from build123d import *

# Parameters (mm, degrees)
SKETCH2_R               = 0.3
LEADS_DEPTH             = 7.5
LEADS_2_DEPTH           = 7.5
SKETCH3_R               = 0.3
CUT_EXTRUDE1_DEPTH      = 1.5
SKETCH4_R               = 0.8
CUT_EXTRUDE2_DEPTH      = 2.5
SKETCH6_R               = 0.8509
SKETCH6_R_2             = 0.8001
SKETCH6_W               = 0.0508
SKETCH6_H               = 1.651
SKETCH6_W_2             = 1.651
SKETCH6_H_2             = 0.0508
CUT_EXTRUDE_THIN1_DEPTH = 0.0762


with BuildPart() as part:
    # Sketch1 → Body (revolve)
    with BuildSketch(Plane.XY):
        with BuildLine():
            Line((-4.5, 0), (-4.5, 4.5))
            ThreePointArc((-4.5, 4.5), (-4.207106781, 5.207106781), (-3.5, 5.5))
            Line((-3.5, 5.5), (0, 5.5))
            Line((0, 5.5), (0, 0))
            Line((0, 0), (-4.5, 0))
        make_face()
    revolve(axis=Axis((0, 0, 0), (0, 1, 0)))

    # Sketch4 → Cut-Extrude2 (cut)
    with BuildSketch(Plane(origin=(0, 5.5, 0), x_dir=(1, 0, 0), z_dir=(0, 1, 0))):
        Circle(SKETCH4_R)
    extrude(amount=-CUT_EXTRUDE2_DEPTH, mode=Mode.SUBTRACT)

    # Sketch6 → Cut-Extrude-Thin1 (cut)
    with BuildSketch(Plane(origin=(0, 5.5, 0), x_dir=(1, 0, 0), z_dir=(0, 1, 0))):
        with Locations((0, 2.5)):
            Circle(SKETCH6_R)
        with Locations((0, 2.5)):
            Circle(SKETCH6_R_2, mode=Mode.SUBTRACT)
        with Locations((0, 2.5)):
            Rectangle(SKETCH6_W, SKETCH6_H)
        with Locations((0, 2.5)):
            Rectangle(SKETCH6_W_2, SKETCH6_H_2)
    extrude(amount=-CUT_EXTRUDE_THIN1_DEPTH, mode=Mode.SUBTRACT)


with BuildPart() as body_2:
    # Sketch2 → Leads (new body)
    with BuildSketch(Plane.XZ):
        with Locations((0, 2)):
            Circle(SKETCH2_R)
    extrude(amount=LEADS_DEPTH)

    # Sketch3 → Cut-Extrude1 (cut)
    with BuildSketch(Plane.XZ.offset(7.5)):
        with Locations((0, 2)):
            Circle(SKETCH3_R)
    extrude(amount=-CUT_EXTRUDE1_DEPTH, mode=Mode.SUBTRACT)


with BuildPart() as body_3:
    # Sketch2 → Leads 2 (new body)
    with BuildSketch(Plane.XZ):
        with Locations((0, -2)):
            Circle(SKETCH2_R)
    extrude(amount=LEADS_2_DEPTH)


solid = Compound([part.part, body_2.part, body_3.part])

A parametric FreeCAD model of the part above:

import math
import FreeCAD as App
import Part
import Sketcher
from FreeCAD import Vector
Q = App.Units.Quantity

doc = App.newDocument("Part")
body = doc.addObject("PartDesign::Body", "Body")

# Sketch on XY plane
sketch1 = body.newObject("Sketcher::SketchObject", "Sketch")
sketch1.AttachmentSupport = (doc.getObject("XY_Plane"), [""])
sketch1.MapMode = "FlatFace"
sketch1.addGeometry([
    Part.LineSegment(Vector(-4.5, 4.5, 0), Vector(-4.5, 0, 0)),  # 0
    Part.LineSegment(Vector(-4.5, 0, 0), Vector(0, 0, 0)),  # 1
    Part.LineSegment(Vector(0, 0, 0), Vector(0, 5.5, 0)),  # 2
    Part.LineSegment(Vector(0, 5.5, 0), Vector(-3.5, 5.5, 0)),  # 3
    Part.ArcOfCircle(Part.Circle(Vector(-3.5, 4.5, 0), Vector(0, 0, 1), 1), math.radians(90), math.radians(180)),  # 4
], False)
sketch1.addConstraint([
    Sketcher.Constraint("Coincident", 0, 2, 1, 1),
    Sketcher.Constraint("Coincident", 1, 2, 2, 1),
    Sketcher.Constraint("Coincident", 2, 2, 3, 1),
    Sketcher.Constraint("Tangent", 3, 2, 4, 1),
    Sketcher.Constraint("Tangent", 4, 2, 0, 1),
    Sketcher.Constraint("Vertical", 0),
    Sketcher.Constraint("Horizontal", 1),
    Sketcher.Constraint("Vertical", 2),
    Sketcher.Constraint("Horizontal", 3),
    Sketcher.Constraint("Coincident", 1, 2, -1, 1),
    Sketcher.Constraint("Equal", 1, 0),
    Sketcher.Constraint("Radius", 4, Q("1 mm")),
    Sketcher.Constraint("DistanceX", 1, 1, 1, 2, Q("4.5 mm")),
])
revolution = body.newObject("PartDesign::Revolution", "Revolution")
revolution.Profile = sketch1
revolution.ReferenceAxis = (sketch1, ["V_Axis"])
revolution.Angle = 360

# Sketch on XZ plane
sketch2 = body.newObject("Sketcher::SketchObject", "Sketch001")
sketch2.AttachmentSupport = (doc.getObject("XZ_Plane"), [""])
sketch2.MapMode = "FlatFace"
sketch2.AttachmentOffset = App.Placement(Vector(0, 0, -5.5), App.Rotation())
sketch2.addGeometry(Part.Circle(Vector(0, 0, 0), Vector(0, 0, 1), 0.8), False)
sketch2.addConstraint([
    Sketcher.Constraint("Coincident", 0, 3, -1, 1),
    Sketcher.Constraint("Diameter", 0, Q("1.6 mm")),
])
pocket1 = body.newObject("PartDesign::Pocket", "Pocket")
pocket1.Profile = sketch2
pocket1.Length = 2.5
pocket1.Reversed = True

# Sketch on XZ plane
sketch3 = body.newObject("Sketcher::SketchObject", "Sketch002")
sketch3.AttachmentSupport = (doc.getObject("XZ_Plane"), [""])
sketch3.MapMode = "FlatFace"
sketch3.AttachmentOffset = App.Placement(Vector(0, 0, -5.5), App.Rotation())
sketch3.addGeometry([
    Part.Circle(Vector(0, -2.5, 0), Vector(0, 0, 1), 0.8509),  # 0
    Part.LineSegment(Vector(0.0254, -2.5254, 0), Vector(0.0254, -3.299697, 0)),  # 1
    Part.ArcOfCircle(Part.Circle(Vector(0, -2.5, 0), Vector(0, 0, 1), 0.8001), math.radians(-88.180781), math.radians(-1.819219)),  # 2
    Part.LineSegment(Vector(0.799697, -2.5254, 0), Vector(0.0254, -2.5254, 0)),  # 3
    Part.LineSegment(Vector(-0.0254, -3.299697, 0), Vector(-0.0254, -2.5254, 0)),  # 4
    Part.LineSegment(Vector(-0.0254, -2.5254, 0), Vector(-0.799697, -2.5254, 0)),  # 5
    Part.ArcOfCircle(Part.Circle(Vector(0, -2.5, 0), Vector(0, 0, 1), 0.8001), math.radians(-178.180781), math.radians(-91.819219)),  # 6
    Part.ArcOfCircle(Part.Circle(Vector(0, -2.5, 0), Vector(0, 0, 1), 0.8001), math.radians(91.819219), math.radians(178.180781)),  # 7
    Part.LineSegment(Vector(-0.799697, -2.4746, 0), Vector(-0.0254, -2.4746, 0)),  # 8
    Part.LineSegment(Vector(-0.0254, -2.4746, 0), Vector(-0.0254, -1.700303, 0)),  # 9
    Part.LineSegment(Vector(0.0254, -1.700303, 0), Vector(0.0254, -2.4746, 0)),  # 10
    Part.LineSegment(Vector(0.0254, -2.4746, 0), Vector(0.799697, -2.4746, 0)),  # 11
    Part.ArcOfCircle(Part.Circle(Vector(0, -2.5, 0), Vector(0, 0, 1), 0.8001), math.radians(1.819219), math.radians(88.180781)),  # 12
], False)
sketch3.addConstraint([
    Sketcher.Constraint("Coincident", 1, 2, 2, 1),
    Sketcher.Constraint("Coincident", 2, 2, 3, 1),
    Sketcher.Constraint("Coincident", 3, 2, 1, 1),
    Sketcher.Constraint("Coincident", 4, 2, 5, 1),
    Sketcher.Constraint("Coincident", 5, 2, 6, 1),
    Sketcher.Constraint("Coincident", 6, 2, 4, 1),
    Sketcher.Constraint("Coincident", 7, 2, 8, 1),
    Sketcher.Constraint("Coincident", 8, 2, 9, 1),
    Sketcher.Constraint("Coincident", 9, 2, 7, 1),
    Sketcher.Constraint("Coincident", 10, 2, 11, 1),
    Sketcher.Constraint("Coincident", 11, 2, 12, 1),
    Sketcher.Constraint("Coincident", 12, 2, 10, 1),
    Sketcher.Constraint("Vertical", 1),
    Sketcher.Constraint("Horizontal", 3),
    Sketcher.Constraint("Vertical", 4),
    Sketcher.Constraint("Horizontal", 5),
    Sketcher.Constraint("Horizontal", 8),
    Sketcher.Constraint("Vertical", 9),
    Sketcher.Constraint("Vertical", 10),
    Sketcher.Constraint("Horizontal", 11),
    Sketcher.Constraint("Coincident", 2, 3, 0, 3),
    Sketcher.Constraint("Coincident", 6, 3, 0, 3),
    Sketcher.Constraint("Coincident", 7, 3, 0, 3),
    Sketcher.Constraint("Coincident", 12, 3, 0, 3),
    Sketcher.Constraint("Equal", 2, 6),
    Sketcher.Constraint("Equal", 6, 7),
    Sketcher.Constraint("Equal", 7, 12),
    Sketcher.Constraint("Symmetric", 3, 2, 4, 2, -2),
    Sketcher.Constraint("Symmetric", 8, 2, 10, 2, -2),
    Sketcher.Constraint("PointOnObject", 0, 3, -2),
    Sketcher.Constraint("Vertical", 5, 2, 7, 2),
    Sketcher.Constraint("Vertical", 6, 2, 8, 2),
    Sketcher.Constraint("Equal", 11, 1),
    Sketcher.Constraint("Diameter", 0, Q("1.7018 mm")),
    Sketcher.Constraint("DistanceY", 0, 3, -1, 1, Q("2.5 mm")),
    Sketcher.Constraint("Radius", 2, Q("0.8001 mm")),
    Sketcher.Constraint("DistanceX", -1, 1, 1, 2, Q("0.0254 mm")),
])
pocket2 = body.newObject("PartDesign::Pocket", "Pocket001")
pocket2.Profile = sketch3
pocket2.Length = 0.0762
pocket2.Reversed = True
body2 = doc.addObject("PartDesign::Body", "Body001")

# Sketch on XZ plane
sketch4 = body2.newObject("Sketcher::SketchObject", "Sketch003")
sketch4.AttachmentSupport = (doc.getObject("XZ_Plane001"), [""])
sketch4.MapMode = "FlatFace"
sketch4.addGeometry(Part.Circle(Vector(0, 2, 0), Vector(0, 0, 1), 0.3), False)
sketch4.addConstraint([
    Sketcher.Constraint("PointOnObject", 0, 3, -2),
    Sketcher.Constraint("Diameter", 0, Q("0.6 mm")),
    Sketcher.Constraint("DistanceY", -1, 1, 0, 3, Q("2 mm")),
])
pad1 = body2.newObject("PartDesign::Pad", "Pad")
pad1.Profile = sketch4
pad1.Length = 7.5

# Sketch on XZ plane
sketch5 = body2.newObject("Sketcher::SketchObject", "Sketch004")
sketch5.AttachmentSupport = (doc.getObject("XZ_Plane001"), [""])
sketch5.MapMode = "FlatFace"
sketch5.AttachmentOffset = App.Placement(Vector(0, 0, 7.5), App.Rotation())
sketch5.addGeometry(Part.Circle(Vector(0, 2, 0), Vector(0, 0, 1), 0.3), False)
sketch5.addConstraint([
    Sketcher.Constraint("PointOnObject", 0, 3, -2),
    Sketcher.Constraint("Diameter", 0, Q("0.6 mm")),
    Sketcher.Constraint("DistanceY", -1, 1, 0, 3, Q("2 mm")),
])
pocket3 = body2.newObject("PartDesign::Pocket", "Pocket002")
pocket3.Profile = sketch5
pocket3.Length = 1.5
body3 = doc.addObject("PartDesign::Body", "Body002")

# Sketch on XZ plane
sketch6 = body3.newObject("Sketcher::SketchObject", "Sketch005")
sketch6.AttachmentSupport = (doc.getObject("XZ_Plane002"), [""])
sketch6.MapMode = "FlatFace"
sketch6.addGeometry(Part.Circle(Vector(0, -2, 0), Vector(0, 0, 1), 0.3), False)
sketch6.addConstraint([
    Sketcher.Constraint("PointOnObject", 0, 3, -2),
    Sketcher.Constraint("Diameter", 0, Q("0.6 mm")),
    Sketcher.Constraint("DistanceY", 0, 3, -1, 1, Q("2 mm")),
])
pad2 = body3.newObject("PartDesign::Pad", "Pad001")
pad2.Profile = sketch6
pad2.Length = 7.5

doc.recompute()
